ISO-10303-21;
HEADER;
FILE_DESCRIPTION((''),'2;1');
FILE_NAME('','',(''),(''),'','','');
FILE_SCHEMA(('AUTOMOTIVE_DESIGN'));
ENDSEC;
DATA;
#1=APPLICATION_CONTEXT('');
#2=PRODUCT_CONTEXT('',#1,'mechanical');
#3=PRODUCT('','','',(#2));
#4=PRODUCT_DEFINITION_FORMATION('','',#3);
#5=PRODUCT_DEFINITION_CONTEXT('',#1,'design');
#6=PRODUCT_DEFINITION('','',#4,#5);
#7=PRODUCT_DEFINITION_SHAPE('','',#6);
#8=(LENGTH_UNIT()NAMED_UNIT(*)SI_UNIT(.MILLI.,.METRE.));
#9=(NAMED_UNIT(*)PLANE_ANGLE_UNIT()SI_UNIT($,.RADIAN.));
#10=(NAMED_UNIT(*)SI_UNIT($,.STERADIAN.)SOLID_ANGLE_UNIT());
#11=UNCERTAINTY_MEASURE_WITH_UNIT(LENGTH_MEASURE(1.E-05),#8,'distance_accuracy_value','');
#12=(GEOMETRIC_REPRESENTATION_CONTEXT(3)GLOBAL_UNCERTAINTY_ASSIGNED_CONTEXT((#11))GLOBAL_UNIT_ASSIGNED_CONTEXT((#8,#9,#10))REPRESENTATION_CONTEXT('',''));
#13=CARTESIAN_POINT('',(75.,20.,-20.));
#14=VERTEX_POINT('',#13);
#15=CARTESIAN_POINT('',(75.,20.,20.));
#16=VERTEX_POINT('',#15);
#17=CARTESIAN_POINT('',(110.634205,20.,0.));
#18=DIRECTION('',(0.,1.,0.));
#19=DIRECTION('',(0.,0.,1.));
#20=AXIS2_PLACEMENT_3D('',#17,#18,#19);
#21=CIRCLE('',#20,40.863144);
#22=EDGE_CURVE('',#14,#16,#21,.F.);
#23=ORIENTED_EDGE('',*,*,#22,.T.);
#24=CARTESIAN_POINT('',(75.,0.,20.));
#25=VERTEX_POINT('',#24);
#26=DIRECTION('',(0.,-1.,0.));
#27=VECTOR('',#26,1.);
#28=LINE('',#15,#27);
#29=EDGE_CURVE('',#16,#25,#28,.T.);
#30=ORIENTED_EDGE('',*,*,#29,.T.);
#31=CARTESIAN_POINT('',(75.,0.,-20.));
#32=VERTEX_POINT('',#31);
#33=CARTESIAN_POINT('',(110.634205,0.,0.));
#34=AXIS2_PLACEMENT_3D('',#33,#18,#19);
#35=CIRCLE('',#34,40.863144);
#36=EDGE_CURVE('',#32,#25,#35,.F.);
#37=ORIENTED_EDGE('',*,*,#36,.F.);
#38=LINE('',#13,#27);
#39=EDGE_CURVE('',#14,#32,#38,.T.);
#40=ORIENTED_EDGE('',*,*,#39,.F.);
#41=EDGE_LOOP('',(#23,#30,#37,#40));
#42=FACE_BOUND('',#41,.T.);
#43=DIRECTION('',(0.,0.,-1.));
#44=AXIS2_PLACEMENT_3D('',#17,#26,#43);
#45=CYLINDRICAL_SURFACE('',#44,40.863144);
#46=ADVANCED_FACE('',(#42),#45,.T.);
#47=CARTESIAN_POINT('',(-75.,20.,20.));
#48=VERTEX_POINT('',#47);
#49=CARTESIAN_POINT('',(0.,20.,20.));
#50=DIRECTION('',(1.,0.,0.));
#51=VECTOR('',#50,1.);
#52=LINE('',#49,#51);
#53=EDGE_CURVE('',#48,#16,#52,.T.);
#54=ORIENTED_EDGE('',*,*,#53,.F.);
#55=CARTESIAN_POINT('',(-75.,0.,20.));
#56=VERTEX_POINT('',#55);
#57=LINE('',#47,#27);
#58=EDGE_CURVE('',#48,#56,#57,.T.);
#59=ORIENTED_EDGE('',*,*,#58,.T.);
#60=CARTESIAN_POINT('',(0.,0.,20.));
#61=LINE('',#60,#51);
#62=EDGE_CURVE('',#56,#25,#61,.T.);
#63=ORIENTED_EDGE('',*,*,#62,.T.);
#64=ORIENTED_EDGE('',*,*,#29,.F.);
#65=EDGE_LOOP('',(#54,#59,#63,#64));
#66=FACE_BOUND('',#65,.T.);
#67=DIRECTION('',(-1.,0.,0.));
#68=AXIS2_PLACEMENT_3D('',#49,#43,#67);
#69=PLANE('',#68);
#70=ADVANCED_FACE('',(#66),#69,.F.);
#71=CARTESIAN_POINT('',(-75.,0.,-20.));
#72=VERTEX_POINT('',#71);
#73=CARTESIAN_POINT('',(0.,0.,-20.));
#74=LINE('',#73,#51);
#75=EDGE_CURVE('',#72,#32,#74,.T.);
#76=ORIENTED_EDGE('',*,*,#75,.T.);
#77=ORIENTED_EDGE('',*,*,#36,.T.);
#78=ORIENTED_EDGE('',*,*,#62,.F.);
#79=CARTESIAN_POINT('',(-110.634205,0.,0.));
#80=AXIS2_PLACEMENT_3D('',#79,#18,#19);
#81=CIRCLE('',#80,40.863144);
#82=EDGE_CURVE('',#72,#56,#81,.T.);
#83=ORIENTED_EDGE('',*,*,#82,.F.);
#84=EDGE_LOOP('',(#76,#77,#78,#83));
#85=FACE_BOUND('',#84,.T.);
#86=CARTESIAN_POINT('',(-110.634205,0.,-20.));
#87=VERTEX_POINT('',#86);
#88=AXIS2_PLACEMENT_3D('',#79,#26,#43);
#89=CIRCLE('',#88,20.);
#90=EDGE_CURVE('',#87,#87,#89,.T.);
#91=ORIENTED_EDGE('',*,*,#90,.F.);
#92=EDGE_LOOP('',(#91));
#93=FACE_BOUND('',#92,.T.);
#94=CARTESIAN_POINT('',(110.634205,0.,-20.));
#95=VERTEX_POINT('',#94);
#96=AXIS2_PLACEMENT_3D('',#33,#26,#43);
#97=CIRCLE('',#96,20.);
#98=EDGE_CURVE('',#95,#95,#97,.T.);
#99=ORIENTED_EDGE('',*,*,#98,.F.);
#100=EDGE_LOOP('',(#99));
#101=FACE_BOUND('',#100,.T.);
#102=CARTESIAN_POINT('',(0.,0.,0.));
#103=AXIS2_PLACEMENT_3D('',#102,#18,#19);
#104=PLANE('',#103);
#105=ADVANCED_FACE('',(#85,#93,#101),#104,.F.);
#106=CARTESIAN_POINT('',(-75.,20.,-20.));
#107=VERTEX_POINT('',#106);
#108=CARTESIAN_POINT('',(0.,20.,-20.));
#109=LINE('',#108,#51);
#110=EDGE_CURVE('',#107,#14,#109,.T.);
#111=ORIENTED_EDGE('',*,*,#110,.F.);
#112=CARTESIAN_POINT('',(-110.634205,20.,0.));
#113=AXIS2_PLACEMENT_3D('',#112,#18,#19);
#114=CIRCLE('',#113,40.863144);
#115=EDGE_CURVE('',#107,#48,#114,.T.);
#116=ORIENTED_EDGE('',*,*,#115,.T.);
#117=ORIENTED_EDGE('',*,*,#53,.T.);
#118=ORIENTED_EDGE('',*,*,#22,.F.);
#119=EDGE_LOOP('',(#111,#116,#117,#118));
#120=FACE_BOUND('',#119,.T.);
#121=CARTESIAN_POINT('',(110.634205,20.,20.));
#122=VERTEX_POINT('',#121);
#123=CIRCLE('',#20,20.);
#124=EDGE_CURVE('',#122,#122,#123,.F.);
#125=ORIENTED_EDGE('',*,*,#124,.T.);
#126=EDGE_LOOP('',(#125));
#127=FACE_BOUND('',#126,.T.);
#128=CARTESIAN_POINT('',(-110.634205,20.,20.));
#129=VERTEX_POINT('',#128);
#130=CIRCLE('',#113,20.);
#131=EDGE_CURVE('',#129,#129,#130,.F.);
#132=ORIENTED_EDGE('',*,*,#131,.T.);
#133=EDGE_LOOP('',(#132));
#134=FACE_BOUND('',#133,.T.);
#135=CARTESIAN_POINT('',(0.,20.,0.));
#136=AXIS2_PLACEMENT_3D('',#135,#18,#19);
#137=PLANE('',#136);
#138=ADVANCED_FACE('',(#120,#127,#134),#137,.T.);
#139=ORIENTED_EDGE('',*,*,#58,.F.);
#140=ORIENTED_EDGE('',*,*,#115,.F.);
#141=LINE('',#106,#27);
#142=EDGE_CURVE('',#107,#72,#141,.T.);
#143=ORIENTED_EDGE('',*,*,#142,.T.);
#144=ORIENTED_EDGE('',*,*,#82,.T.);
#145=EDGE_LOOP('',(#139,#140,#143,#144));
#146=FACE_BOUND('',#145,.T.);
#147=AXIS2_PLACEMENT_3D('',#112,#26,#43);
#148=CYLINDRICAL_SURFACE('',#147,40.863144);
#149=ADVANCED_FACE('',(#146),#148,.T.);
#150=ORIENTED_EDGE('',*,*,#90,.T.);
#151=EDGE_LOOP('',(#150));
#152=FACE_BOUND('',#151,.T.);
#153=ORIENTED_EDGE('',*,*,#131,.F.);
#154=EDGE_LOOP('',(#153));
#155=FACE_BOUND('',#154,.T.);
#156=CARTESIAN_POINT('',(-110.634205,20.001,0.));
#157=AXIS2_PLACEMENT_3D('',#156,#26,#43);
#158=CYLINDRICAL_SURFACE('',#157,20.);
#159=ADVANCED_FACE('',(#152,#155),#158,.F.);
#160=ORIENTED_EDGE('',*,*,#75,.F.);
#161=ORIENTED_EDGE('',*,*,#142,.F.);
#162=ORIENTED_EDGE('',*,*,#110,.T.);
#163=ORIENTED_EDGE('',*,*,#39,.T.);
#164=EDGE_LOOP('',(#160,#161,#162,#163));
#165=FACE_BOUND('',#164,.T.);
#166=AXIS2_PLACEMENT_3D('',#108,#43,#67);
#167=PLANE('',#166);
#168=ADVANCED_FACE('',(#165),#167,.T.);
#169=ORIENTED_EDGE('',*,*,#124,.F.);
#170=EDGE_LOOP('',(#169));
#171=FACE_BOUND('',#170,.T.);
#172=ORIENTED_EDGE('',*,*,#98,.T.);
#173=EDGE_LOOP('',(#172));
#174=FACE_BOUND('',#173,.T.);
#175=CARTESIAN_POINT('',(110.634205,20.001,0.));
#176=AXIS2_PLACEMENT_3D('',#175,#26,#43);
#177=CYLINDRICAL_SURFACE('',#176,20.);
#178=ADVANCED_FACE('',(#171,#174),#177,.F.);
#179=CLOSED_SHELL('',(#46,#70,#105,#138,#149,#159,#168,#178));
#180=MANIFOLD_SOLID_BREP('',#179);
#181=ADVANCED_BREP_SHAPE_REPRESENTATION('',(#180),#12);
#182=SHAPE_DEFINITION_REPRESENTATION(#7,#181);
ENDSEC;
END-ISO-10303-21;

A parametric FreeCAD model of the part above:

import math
import FreeCAD as App
import Part
import Sketcher
from FreeCAD import Vector

doc = App.newDocument("Part")
body = doc.addObject("PartDesign::Body", "Body")

sketch1 = doc.addObject("Sketcher::SketchObject", "Sketch")
body.addObject(sketch1)
sketch1.AttachmentSupport = (doc.XZ_Plane, [""])
sketch1.MapMode = "FlatFace"
sketch1.addGeometry([
    Part.LineSegment(Vector(-75, 20, 0), Vector(75, 20, 0)),
    Part.ArcOfCircle(Part.Circle(Vector(111, 0, 0), Vector(0, 0, 1), 41), math.radians(-151), math.radians(151)),
    Part.LineSegment(Vector(75, -20, 0), Vector(-75, -20, 0)),
    Part.ArcOfCircle(Part.Circle(Vector(-111, 0, 0), Vector(0, 0, 1), 41), math.radians(29), math.radians(331)),
], False)
sketch1.addConstraint([
    Sketcher.Constraint("Coincident", 0, 2, 1, 2),
    Sketcher.Constraint("Coincident", 1, 1, 2, 1),
    Sketcher.Constraint("Coincident", 2, 2, 3, 2),
    Sketcher.Constraint("Coincident", 3, 1, 0, 1),
    Sketcher.Constraint("Horizontal", 0),
    Sketcher.Constraint("Horizontal", 2),
    Sketcher.Constraint("Equal", 1, 3),
    Sketcher.Constraint("Symmetric", 1, 3, 3, 3, -1, 1),
    Sketcher.Constraint("Symmetric", 0, 2, 1, 1, -1),
    Sketcher.Constraint("DistanceX", 0, 1, 0, 2, 150.0),
    Sketcher.Constraint("DistanceY", -1, 1, 0, 2, 20.0),
    Sketcher.Constraint("Radius", 1, 40.863144),
])
pad1 = doc.addObject("PartDesign::Pad", "Pad")
body.addObject(pad1)
pad1.Profile = sketch1
pad1.Length = 20
pad1.Reversed = True

sketch2 = doc.addObject("Sketcher::SketchObject", "Sketch001")
body.addObject(sketch2)
sketch2.AttachmentSupport = (doc.XZ_Plane, [""])
sketch2.MapMode = "FlatFace"
sketch2.addGeometry(Part.Circle(Vector(-111, 0, 0), Vector(0, 0, 1), 20), False)
sketch2.addConstraint([
    Sketcher.Constraint("PointOnObject", 0, 3, -1),
    Sketcher.Constraint("Diameter", 0, 40.0),
    Sketcher.Constraint("DistanceX", 0, 3, -1, 1, 110.634205),
])
pocket1 = doc.addObject("PartDesign::Pocket", "Pocket")
body.addObject(pocket1)
pocket1.Profile = sketch2
pocket1.Type = "UpToFirst"

sketch3 = doc.addObject("Sketcher::SketchObject", "Sketch002")
body.addObject(sketch3)
sketch3.AttachmentSupport = (doc.XZ_Plane, [""])
sketch3.MapMode = "FlatFace"
sketch3.addGeometry(Part.Circle(Vector(111, 0, 0), Vector(0, 0, 1), 20), False)
sketch3.addConstraint([
    Sketcher.Constraint("PointOnObject", 0, 3, -1),
    Sketcher.Constraint("Diameter", 0, 40.0),
    Sketcher.Constraint("DistanceX", -1, 1, 0, 3, 110.634205),
])
pocket2 = doc.addObject("PartDesign::Pocket", "Pocket001")
body.addObject(pocket2)
pocket2.Profile = sketch3
pocket2.Type = "UpToFirst"

doc.recompute()
